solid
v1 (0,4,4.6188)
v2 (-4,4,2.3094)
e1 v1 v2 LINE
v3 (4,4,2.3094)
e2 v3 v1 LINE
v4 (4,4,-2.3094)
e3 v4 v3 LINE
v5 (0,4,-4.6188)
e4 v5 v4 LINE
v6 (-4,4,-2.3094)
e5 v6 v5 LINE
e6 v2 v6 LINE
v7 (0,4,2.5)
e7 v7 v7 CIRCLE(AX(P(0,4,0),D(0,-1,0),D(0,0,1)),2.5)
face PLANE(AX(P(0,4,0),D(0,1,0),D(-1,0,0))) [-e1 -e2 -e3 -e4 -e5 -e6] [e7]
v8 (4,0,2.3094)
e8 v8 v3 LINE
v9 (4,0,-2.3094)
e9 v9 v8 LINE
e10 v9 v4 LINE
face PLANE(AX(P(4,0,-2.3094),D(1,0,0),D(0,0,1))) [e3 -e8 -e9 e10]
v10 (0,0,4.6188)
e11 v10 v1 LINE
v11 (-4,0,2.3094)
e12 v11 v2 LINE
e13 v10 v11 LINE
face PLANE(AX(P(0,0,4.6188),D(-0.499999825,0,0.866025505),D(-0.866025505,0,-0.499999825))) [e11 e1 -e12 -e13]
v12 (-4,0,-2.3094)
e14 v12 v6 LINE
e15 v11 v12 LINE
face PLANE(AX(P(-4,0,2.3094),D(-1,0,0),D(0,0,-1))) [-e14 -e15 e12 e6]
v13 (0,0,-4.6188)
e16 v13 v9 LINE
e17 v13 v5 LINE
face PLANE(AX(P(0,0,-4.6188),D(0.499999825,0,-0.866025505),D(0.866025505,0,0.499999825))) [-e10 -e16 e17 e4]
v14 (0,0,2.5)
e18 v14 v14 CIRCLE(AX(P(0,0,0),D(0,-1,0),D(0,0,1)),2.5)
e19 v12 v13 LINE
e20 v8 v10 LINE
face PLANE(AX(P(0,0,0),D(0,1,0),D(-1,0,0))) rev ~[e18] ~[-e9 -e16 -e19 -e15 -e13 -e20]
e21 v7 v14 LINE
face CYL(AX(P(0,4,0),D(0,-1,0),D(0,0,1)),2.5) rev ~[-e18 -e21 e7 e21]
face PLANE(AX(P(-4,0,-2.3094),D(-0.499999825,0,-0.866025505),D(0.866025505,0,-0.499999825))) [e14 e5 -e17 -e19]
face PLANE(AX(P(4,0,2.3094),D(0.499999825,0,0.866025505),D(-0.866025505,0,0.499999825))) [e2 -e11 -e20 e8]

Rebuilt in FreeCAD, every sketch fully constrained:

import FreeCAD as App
import Part
import Sketcher

V = App.Vector
Q = App.Units.Quantity


def add_polygon(sketch, points):
    """Adds a closed chain of lines whose ends are joined by coincident constraints."""
    first, n = sketch.GeometryCount, len(points)
    for a, b in zip(points, points[1:] + points[:1]):
        sketch.addGeometry(Part.LineSegment(App.Vector(*a, 0), App.Vector(*b, 0)), False)
    for i in range(n):
        sketch.addConstraint(Sketcher.Constraint("Coincident", first + i, 2, first + (i + 1) % n, 1))

doc = App.newDocument("Part")
body = doc.addObject("PartDesign::Body", "Body")

sketch1 = body.newObject("Sketcher::SketchObject", "Sketch")
sketch1.AttachmentSupport = (doc.getObject("XZ_Plane"), [""])
sketch1.MapMode = "FlatFace"
add_polygon(sketch1, [(-4, 2.3), (0, 4.6), (4, 2.3), (4, -2.3), (0, -4.6), (-4, -2.3)])
sketch1.addConstraint([
    Sketcher.Constraint("Vertical", 2),
    Sketcher.Constraint("Vertical", 5),
    Sketcher.Constraint("Symmetric", 0, 2, 3, 2, -1, 1),
    Sketcher.Constraint("Symmetric", 1, 2, 4, 2, -1, 1),
    Sketcher.Constraint("PointOnObject", 0, 2, -2),
    Sketcher.Constraint("Parallel", 0, 3),
    Sketcher.Constraint("Horizontal", 2, 2, 4, 2),
    Sketcher.Constraint("DistanceX", 4, 2, 2, 2, 8.0),
    Sketcher.Constraint("Angle", 0, Q("30 deg")),
    Sketcher.Constraint("DistanceY", 2, 2, 2, 1, 4.6188),
])
pad1 = body.newObject("PartDesign::Pad", "Pad")
pad1.Profile = sketch1
pad1.Length = 4
pad1.Reversed = True

sketch2 = body.newObject("Sketcher::SketchObject", "Sketch001")
sketch2.AttachmentSupport = (doc.getObject("XZ_Plane"), [""])
sketch2.MapMode = "FlatFace"
sketch2.AttachmentOffset = App.Placement(V(0, 0, -4), App.Rotation())
sketch2.addGeometry(Part.Circle(V(0, 0, 0), V(0, 0, 1), 2.5), False)
sketch2.addConstraint([
    Sketcher.Constraint("Coincident", 0, 3, -1, 1),
    Sketcher.Constraint("Diameter", 0, 5.0),
])
doc.recompute()
hole = body.newObject("PartDesign::Hole", "Hole")
hole.Profile = sketch2
hole.ThreadType = "None"
hole.Diameter = 5
hole.DepthType = "ThroughAll"
hole.Reversed = True

doc.recompute()
